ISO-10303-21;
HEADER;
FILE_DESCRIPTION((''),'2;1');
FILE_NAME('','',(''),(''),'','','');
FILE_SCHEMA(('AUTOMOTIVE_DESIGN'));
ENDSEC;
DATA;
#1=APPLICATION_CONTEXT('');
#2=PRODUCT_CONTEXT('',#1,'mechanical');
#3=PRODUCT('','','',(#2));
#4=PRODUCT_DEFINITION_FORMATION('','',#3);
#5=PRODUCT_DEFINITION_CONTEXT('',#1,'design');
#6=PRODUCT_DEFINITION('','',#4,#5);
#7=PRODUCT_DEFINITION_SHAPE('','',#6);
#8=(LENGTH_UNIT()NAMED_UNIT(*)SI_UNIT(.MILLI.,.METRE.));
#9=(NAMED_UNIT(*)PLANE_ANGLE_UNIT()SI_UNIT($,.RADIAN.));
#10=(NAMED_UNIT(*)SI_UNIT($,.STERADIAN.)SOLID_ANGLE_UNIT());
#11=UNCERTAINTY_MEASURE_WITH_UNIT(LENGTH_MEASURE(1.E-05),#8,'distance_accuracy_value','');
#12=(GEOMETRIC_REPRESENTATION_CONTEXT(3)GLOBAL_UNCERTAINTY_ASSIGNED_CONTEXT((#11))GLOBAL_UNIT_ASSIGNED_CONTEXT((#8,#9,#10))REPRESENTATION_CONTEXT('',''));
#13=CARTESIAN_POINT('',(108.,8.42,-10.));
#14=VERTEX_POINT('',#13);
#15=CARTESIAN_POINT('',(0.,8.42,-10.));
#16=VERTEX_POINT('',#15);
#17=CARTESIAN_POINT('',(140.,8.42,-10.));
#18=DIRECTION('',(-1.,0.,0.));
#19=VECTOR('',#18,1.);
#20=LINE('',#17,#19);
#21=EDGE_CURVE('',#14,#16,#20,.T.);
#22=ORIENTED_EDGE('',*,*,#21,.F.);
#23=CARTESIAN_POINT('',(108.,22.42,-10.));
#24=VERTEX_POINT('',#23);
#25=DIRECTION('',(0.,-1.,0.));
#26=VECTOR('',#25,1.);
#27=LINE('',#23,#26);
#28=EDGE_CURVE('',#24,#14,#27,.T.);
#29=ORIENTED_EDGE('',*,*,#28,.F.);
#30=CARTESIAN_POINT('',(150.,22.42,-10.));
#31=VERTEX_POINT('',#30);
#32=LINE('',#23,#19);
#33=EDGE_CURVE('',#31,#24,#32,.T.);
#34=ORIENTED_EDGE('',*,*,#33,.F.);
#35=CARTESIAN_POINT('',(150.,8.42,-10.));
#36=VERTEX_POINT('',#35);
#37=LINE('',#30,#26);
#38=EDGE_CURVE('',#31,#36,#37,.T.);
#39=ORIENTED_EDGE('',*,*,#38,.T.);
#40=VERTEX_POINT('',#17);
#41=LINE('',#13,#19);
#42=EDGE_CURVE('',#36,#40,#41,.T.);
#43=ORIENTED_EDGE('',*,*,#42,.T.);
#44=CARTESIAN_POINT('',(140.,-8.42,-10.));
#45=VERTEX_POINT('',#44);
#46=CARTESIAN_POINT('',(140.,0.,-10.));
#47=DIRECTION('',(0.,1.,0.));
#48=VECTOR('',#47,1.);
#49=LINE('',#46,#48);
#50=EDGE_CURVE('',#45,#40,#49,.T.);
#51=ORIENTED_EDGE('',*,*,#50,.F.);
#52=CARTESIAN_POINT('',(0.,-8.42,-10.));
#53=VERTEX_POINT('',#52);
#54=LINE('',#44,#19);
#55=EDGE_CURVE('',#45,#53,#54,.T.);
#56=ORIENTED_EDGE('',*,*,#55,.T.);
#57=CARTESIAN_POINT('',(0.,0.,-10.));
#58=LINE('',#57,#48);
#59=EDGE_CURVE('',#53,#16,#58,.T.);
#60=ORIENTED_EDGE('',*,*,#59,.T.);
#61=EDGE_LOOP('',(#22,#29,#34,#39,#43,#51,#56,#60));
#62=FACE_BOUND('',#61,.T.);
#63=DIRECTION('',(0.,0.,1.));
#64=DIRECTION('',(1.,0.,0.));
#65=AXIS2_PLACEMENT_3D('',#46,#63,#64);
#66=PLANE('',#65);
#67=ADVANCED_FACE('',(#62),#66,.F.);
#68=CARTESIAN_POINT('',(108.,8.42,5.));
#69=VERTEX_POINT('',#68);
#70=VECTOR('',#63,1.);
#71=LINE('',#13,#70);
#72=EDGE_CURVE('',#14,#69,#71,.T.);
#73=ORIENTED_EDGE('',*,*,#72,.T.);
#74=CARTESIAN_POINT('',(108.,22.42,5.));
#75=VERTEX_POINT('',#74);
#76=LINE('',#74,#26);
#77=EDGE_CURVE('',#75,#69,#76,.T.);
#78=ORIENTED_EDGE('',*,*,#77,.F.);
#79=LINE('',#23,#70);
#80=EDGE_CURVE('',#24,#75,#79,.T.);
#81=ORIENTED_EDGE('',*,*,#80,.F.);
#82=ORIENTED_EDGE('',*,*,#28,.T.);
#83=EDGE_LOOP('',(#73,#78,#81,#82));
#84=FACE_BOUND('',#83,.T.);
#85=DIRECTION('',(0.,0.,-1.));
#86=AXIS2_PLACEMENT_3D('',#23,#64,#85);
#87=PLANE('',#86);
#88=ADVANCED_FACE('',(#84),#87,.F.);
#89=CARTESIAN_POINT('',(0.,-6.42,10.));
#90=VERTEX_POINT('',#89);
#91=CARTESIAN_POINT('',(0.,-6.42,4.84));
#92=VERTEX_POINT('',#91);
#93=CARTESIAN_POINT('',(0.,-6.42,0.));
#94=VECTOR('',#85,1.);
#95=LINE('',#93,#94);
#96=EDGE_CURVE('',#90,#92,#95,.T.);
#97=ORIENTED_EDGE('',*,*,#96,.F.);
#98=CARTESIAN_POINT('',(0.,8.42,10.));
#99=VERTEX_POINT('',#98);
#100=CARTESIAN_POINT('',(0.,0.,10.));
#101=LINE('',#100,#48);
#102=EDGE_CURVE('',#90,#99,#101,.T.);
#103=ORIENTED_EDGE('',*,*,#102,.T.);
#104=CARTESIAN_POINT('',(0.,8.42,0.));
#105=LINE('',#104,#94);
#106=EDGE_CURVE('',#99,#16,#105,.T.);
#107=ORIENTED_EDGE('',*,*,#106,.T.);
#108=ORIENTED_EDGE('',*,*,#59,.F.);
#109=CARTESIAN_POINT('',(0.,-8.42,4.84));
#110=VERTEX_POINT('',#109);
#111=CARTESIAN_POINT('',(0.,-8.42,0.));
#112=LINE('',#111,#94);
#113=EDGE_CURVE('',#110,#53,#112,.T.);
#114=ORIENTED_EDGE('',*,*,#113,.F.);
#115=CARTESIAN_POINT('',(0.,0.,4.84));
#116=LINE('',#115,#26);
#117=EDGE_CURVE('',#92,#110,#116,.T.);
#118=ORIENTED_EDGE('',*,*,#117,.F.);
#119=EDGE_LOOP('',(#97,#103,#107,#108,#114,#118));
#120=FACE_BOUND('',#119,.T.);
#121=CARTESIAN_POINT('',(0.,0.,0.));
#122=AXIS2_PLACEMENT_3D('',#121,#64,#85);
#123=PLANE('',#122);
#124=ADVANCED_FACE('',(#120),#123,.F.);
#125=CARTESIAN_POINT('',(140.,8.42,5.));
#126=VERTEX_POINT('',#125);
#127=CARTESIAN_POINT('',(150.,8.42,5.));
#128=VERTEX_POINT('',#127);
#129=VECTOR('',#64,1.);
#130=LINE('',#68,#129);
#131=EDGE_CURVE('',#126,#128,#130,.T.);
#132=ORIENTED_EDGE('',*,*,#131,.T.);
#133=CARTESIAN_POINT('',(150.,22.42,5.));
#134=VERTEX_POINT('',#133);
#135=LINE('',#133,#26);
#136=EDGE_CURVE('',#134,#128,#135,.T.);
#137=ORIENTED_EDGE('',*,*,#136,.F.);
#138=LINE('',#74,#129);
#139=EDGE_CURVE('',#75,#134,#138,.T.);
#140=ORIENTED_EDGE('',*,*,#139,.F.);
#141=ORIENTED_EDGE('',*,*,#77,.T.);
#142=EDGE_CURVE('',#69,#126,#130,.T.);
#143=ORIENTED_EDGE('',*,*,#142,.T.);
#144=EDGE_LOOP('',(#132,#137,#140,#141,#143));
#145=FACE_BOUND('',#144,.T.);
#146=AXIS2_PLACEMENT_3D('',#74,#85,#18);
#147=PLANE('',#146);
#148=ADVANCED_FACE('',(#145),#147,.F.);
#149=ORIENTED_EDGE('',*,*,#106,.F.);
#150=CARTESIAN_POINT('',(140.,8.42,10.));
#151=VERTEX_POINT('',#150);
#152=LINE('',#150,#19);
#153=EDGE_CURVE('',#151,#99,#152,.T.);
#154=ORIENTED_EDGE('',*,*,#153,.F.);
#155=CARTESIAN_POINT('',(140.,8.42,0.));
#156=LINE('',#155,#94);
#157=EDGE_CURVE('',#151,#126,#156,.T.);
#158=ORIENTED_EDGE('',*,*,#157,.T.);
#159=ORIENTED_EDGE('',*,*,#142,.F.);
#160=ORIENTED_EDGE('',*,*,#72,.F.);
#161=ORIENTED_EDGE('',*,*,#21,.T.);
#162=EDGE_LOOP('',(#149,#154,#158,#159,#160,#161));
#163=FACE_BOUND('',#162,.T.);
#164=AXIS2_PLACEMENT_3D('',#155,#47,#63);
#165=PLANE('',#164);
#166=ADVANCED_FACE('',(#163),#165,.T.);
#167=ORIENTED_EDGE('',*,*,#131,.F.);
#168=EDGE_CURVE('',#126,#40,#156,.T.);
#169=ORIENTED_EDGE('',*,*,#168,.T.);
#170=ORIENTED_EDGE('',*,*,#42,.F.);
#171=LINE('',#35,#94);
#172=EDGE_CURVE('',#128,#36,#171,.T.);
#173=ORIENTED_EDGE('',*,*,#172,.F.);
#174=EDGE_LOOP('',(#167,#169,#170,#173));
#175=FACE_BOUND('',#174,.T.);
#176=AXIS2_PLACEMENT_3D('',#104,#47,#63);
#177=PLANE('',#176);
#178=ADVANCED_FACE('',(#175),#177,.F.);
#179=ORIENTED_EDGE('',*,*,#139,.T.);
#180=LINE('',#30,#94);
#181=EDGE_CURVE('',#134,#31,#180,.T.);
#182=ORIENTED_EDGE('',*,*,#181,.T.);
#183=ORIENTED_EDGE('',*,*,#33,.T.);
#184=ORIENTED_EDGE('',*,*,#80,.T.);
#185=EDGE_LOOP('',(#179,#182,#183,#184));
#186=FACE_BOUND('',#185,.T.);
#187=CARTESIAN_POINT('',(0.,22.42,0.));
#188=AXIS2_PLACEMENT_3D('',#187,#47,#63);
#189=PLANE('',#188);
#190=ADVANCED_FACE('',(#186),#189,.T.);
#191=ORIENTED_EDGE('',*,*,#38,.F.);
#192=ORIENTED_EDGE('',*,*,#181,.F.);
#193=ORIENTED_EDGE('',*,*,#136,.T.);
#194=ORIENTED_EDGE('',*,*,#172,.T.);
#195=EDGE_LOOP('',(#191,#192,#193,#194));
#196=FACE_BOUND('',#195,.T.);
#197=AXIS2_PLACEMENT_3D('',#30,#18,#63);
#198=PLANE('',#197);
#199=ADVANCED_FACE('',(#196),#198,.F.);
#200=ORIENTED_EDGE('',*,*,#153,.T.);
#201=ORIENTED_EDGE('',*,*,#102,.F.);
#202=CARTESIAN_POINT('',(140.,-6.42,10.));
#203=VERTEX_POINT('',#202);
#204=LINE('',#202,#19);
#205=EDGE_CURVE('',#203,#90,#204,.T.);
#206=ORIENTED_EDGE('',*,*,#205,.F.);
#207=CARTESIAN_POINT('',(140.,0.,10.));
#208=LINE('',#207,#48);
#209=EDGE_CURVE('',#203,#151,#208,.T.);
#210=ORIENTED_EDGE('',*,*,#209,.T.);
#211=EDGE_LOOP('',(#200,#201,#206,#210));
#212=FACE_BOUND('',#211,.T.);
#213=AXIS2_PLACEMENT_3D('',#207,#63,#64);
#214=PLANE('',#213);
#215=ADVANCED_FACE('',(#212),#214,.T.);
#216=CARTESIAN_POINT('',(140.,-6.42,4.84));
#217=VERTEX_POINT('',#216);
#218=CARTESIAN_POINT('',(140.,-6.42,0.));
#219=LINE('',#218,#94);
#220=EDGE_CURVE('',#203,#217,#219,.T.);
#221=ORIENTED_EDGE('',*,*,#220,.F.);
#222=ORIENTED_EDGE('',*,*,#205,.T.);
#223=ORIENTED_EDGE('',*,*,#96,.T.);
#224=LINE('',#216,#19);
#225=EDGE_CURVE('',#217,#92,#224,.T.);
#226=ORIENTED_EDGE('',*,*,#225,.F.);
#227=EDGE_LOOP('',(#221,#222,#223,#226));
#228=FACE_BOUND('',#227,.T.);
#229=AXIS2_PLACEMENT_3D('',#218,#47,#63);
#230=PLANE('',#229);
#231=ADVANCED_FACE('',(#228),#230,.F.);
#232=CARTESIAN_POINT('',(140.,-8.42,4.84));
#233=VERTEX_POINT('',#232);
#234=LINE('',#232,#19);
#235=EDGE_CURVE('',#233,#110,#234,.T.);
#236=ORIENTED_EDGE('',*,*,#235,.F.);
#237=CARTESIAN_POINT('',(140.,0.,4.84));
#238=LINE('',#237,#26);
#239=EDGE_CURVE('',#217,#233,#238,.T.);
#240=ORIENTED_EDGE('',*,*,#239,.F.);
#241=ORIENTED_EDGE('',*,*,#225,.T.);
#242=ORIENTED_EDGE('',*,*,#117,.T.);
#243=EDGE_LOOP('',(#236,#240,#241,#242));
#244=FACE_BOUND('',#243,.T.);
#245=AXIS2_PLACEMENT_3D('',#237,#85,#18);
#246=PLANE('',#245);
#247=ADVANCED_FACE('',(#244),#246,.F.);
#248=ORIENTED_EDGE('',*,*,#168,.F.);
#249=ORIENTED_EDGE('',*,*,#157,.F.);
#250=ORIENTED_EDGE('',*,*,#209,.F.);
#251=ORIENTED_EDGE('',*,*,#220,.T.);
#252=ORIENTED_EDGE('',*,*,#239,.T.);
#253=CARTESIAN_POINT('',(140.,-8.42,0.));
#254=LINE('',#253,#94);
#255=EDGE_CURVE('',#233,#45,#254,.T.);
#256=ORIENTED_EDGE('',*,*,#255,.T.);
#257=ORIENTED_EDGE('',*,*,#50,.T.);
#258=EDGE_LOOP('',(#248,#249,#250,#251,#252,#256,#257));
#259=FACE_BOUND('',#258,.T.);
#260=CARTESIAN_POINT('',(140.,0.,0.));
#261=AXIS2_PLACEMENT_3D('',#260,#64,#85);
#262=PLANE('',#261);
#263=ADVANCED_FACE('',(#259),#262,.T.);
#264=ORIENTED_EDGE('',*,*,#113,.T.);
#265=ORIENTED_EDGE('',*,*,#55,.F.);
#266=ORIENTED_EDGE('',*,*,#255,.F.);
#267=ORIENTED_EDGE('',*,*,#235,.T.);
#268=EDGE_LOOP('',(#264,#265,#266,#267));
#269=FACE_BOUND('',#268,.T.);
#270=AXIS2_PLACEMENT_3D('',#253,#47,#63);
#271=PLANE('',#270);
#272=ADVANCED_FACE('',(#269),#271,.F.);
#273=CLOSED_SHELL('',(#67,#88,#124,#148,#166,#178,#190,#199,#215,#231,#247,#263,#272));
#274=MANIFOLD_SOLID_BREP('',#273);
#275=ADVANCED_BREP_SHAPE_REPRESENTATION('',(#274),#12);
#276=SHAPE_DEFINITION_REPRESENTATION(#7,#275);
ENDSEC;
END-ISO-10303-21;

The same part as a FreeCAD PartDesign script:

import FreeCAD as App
import Part
import Sketcher
from FreeCAD import Vector


def add_polygon(sketch, points):
    """Adds a closed chain of lines whose ends are joined by coincident constraints."""
    first, n = sketch.GeometryCount, len(points)
    for a, b in zip(points, points[1:] + points[:1]):
        sketch.addGeometry(Part.LineSegment(App.Vector(*a, 0), App.Vector(*b, 0)), False)
    for i in range(n):
        sketch.addConstraint(Sketcher.Constraint("Coincident", first + i, 2, first + (i + 1) % n, 1))

doc = App.newDocument("Part")
body = doc.addObject("PartDesign::Body", "Body")

# Sketch on YZ plane
sketch1 = body.newObject("Sketcher::SketchObject", "Sketch")
sketch1.AttachmentSupport = (doc.getObject("YZ_Plane"), [""])
sketch1.MapMode = "FlatFace"
add_polygon(sketch1, [(8.42, 10), (-6.42, 10), (-6.42, 4.84), (-8.42, 4.84), (-8.42, -10), (8.42, -10)])  # lines 0-5
sketch1.addConstraint([
    Sketcher.Constraint("Horizontal", 0),
    Sketcher.Constraint("Vertical", 1),
    Sketcher.Constraint("Horizontal", 2),
    Sketcher.Constraint("Vertical", 3),
    Sketcher.Constraint("Horizontal", 4),
    Sketcher.Constraint("Vertical", 5),
    Sketcher.Constraint("Symmetric", 3, 2, 5, 2, -1, 1),
    Sketcher.Constraint("Equal", 0, 3),
    Sketcher.Constraint("DistanceX", 2, 2, 2, 1, 2.0),
    Sketcher.Constraint("DistanceY", 5, 1, 5, 2, 20.0),
    Sketcher.Constraint("DistanceX", 0, 2, 0, 1, 14.84),
])
pad1 = body.newObject("PartDesign::Pad", "Pad")
pad1.Profile = sketch1
pad1.Length = 140

# Sketch on XZ plane
sketch2 = body.newObject("Sketcher::SketchObject", "Sketch001")
sketch2.AttachmentSupport = (doc.getObject("XZ_Plane"), [""])
sketch2.MapMode = "FlatFace"
sketch2.AttachmentOffset = App.Placement(Vector(0, 0, -8.42), App.Rotation())
add_polygon(sketch2, [(108, -10), (108, 5), (150, 5), (150, -10)])  # lines 0-3
sketch2.addConstraint([
    Sketcher.Constraint("Vertical", 0),
    Sketcher.Constraint("Horizontal", 1),
    Sketcher.Constraint("Vertical", 2),
    Sketcher.Constraint("Horizontal", 3),
    Sketcher.Constraint("DistanceX", 1, 1, 1, 2, 42.0),
    Sketcher.Constraint("DistanceY", 0, 1, 0, 2, 15.0),
    Sketcher.Constraint("DistanceX", -1, 1, 0, 2, 108.0),
    Sketcher.Constraint("DistanceY", -1, 1, 0, 2, 5.0),
])
pad2 = body.newObject("PartDesign::Pad", "Pad001")
pad2.Profile = sketch2
pad2.Length = 14
pad2.Reversed = True

doc.recompute()
